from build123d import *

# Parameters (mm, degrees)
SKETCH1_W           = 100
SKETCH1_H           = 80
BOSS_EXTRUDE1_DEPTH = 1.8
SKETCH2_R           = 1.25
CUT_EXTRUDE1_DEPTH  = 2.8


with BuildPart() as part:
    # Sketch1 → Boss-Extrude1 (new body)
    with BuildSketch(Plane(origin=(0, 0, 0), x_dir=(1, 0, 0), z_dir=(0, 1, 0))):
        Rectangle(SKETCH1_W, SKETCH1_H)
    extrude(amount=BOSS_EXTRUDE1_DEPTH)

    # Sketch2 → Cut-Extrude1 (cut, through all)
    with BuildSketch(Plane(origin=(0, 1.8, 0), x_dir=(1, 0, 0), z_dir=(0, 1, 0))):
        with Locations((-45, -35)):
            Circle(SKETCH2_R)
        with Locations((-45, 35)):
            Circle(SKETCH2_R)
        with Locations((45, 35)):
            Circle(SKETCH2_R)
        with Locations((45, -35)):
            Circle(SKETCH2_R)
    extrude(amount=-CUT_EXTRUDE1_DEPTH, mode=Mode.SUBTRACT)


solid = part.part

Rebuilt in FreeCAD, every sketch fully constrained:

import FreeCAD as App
import Part
import Sketcher
from FreeCAD import Vector
Q = App.Units.Quantity

doc = App.newDocument("Part")
body = doc.addObject("PartDesign::Body", "Body")

sketch1 = body.newObject("Sketcher::SketchObject", "Sketch")
sketch1.AttachmentSupport = (doc.getObject("XZ_Plane"), [""])
sketch1.MapMode = "FlatFace"
sketch1.addGeometry([
    Part.LineSegment(Vector(-50, -40, 0), Vector(-50, 40, 0)),
    Part.LineSegment(Vector(-50, 40, 0), Vector(50, 40, 0)),
    Part.LineSegment(Vector(50, 40, 0), Vector(50, -40, 0)),
    Part.LineSegment(Vector(50, -40, 0), Vector(-50, -40, 0)),
], False)
sketch1.addConstraint([
    Sketcher.Constraint("Coincident", 0, 2, 1, 1),
    Sketcher.Constraint("Coincident", 1, 2, 2, 1),
    Sketcher.Constraint("Coincident", 2, 2, 3, 1),
    Sketcher.Constraint("Coincident", 3, 2, 0, 1),
    Sketcher.Constraint("Vertical", 0),
    Sketcher.Constraint("Horizontal", 1),
    Sketcher.Constraint("Vertical", 2),
    Sketcher.Constraint("Horizontal", 3),
    Sketcher.Constraint("Symmetric", 0, 2, 2, 2, -1, 1),
    Sketcher.Constraint("DistanceX", 1, 1, 1, 2, Q("100 mm")),
    Sketcher.Constraint("DistanceY", 0, 1, 0, 2, Q("80 mm")),
])
pad1 = body.newObject("PartDesign::Pad", "Pad")
pad1.Profile = sketch1
pad1.Length = 1.8
pad1.Reversed = True

sketch2 = body.newObject("Sketcher::SketchObject", "Sketch001")
sketch2.AttachmentSupport = (doc.getObject("XZ_Plane"), [""])
sketch2.MapMode = "FlatFace"
sketch2.AttachmentOffset = App.Placement(Vector(0, 0, -1.8), App.Rotation())
sketch2.addGeometry([
    Part.Circle(Vector(-45, 35, 0), Vector(0, 0, 1), 1.25),
    Part.Circle(Vector(-45, -35, 0), Vector(0, 0, 1), 1.25),
    Part.Circle(Vector(45, -35, 0), Vector(0, 0, 1), 1.25),
    Part.Circle(Vector(45, 35, 0), Vector(0, 0, 1), 1.25),
], False)
sketch2.addConstraint([
    Sketcher.Constraint("Equal", 0, 1),
    Sketcher.Constraint("Equal", 1, 2),
    Sketcher.Constraint("Equal", 2, 3),
    Sketcher.Constraint("Symmetric", 0, 3, 2, 3, -1, 1),
    Sketcher.Constraint("Symmetric", 1, 3, 3, 3, -1, 1),
    Sketcher.Constraint("Symmetric", 1, 3, 2, 3, -2),
    Sketcher.Constraint("Diameter", 0, Q("2.5 mm")),
    Sketcher.Constraint("DistanceX", 0, 3, -1, 1, Q("45 mm")),
    Sketcher.Constraint("DistanceY", -1, 1, 0, 3, Q("35 mm")),
])
pocket1 = body.newObject("PartDesign::Pocket", "Pocket")
pocket1.Profile = sketch2
pocket1.Type = "ThroughAll"
pocket1.Reversed = True

doc.recompute()
